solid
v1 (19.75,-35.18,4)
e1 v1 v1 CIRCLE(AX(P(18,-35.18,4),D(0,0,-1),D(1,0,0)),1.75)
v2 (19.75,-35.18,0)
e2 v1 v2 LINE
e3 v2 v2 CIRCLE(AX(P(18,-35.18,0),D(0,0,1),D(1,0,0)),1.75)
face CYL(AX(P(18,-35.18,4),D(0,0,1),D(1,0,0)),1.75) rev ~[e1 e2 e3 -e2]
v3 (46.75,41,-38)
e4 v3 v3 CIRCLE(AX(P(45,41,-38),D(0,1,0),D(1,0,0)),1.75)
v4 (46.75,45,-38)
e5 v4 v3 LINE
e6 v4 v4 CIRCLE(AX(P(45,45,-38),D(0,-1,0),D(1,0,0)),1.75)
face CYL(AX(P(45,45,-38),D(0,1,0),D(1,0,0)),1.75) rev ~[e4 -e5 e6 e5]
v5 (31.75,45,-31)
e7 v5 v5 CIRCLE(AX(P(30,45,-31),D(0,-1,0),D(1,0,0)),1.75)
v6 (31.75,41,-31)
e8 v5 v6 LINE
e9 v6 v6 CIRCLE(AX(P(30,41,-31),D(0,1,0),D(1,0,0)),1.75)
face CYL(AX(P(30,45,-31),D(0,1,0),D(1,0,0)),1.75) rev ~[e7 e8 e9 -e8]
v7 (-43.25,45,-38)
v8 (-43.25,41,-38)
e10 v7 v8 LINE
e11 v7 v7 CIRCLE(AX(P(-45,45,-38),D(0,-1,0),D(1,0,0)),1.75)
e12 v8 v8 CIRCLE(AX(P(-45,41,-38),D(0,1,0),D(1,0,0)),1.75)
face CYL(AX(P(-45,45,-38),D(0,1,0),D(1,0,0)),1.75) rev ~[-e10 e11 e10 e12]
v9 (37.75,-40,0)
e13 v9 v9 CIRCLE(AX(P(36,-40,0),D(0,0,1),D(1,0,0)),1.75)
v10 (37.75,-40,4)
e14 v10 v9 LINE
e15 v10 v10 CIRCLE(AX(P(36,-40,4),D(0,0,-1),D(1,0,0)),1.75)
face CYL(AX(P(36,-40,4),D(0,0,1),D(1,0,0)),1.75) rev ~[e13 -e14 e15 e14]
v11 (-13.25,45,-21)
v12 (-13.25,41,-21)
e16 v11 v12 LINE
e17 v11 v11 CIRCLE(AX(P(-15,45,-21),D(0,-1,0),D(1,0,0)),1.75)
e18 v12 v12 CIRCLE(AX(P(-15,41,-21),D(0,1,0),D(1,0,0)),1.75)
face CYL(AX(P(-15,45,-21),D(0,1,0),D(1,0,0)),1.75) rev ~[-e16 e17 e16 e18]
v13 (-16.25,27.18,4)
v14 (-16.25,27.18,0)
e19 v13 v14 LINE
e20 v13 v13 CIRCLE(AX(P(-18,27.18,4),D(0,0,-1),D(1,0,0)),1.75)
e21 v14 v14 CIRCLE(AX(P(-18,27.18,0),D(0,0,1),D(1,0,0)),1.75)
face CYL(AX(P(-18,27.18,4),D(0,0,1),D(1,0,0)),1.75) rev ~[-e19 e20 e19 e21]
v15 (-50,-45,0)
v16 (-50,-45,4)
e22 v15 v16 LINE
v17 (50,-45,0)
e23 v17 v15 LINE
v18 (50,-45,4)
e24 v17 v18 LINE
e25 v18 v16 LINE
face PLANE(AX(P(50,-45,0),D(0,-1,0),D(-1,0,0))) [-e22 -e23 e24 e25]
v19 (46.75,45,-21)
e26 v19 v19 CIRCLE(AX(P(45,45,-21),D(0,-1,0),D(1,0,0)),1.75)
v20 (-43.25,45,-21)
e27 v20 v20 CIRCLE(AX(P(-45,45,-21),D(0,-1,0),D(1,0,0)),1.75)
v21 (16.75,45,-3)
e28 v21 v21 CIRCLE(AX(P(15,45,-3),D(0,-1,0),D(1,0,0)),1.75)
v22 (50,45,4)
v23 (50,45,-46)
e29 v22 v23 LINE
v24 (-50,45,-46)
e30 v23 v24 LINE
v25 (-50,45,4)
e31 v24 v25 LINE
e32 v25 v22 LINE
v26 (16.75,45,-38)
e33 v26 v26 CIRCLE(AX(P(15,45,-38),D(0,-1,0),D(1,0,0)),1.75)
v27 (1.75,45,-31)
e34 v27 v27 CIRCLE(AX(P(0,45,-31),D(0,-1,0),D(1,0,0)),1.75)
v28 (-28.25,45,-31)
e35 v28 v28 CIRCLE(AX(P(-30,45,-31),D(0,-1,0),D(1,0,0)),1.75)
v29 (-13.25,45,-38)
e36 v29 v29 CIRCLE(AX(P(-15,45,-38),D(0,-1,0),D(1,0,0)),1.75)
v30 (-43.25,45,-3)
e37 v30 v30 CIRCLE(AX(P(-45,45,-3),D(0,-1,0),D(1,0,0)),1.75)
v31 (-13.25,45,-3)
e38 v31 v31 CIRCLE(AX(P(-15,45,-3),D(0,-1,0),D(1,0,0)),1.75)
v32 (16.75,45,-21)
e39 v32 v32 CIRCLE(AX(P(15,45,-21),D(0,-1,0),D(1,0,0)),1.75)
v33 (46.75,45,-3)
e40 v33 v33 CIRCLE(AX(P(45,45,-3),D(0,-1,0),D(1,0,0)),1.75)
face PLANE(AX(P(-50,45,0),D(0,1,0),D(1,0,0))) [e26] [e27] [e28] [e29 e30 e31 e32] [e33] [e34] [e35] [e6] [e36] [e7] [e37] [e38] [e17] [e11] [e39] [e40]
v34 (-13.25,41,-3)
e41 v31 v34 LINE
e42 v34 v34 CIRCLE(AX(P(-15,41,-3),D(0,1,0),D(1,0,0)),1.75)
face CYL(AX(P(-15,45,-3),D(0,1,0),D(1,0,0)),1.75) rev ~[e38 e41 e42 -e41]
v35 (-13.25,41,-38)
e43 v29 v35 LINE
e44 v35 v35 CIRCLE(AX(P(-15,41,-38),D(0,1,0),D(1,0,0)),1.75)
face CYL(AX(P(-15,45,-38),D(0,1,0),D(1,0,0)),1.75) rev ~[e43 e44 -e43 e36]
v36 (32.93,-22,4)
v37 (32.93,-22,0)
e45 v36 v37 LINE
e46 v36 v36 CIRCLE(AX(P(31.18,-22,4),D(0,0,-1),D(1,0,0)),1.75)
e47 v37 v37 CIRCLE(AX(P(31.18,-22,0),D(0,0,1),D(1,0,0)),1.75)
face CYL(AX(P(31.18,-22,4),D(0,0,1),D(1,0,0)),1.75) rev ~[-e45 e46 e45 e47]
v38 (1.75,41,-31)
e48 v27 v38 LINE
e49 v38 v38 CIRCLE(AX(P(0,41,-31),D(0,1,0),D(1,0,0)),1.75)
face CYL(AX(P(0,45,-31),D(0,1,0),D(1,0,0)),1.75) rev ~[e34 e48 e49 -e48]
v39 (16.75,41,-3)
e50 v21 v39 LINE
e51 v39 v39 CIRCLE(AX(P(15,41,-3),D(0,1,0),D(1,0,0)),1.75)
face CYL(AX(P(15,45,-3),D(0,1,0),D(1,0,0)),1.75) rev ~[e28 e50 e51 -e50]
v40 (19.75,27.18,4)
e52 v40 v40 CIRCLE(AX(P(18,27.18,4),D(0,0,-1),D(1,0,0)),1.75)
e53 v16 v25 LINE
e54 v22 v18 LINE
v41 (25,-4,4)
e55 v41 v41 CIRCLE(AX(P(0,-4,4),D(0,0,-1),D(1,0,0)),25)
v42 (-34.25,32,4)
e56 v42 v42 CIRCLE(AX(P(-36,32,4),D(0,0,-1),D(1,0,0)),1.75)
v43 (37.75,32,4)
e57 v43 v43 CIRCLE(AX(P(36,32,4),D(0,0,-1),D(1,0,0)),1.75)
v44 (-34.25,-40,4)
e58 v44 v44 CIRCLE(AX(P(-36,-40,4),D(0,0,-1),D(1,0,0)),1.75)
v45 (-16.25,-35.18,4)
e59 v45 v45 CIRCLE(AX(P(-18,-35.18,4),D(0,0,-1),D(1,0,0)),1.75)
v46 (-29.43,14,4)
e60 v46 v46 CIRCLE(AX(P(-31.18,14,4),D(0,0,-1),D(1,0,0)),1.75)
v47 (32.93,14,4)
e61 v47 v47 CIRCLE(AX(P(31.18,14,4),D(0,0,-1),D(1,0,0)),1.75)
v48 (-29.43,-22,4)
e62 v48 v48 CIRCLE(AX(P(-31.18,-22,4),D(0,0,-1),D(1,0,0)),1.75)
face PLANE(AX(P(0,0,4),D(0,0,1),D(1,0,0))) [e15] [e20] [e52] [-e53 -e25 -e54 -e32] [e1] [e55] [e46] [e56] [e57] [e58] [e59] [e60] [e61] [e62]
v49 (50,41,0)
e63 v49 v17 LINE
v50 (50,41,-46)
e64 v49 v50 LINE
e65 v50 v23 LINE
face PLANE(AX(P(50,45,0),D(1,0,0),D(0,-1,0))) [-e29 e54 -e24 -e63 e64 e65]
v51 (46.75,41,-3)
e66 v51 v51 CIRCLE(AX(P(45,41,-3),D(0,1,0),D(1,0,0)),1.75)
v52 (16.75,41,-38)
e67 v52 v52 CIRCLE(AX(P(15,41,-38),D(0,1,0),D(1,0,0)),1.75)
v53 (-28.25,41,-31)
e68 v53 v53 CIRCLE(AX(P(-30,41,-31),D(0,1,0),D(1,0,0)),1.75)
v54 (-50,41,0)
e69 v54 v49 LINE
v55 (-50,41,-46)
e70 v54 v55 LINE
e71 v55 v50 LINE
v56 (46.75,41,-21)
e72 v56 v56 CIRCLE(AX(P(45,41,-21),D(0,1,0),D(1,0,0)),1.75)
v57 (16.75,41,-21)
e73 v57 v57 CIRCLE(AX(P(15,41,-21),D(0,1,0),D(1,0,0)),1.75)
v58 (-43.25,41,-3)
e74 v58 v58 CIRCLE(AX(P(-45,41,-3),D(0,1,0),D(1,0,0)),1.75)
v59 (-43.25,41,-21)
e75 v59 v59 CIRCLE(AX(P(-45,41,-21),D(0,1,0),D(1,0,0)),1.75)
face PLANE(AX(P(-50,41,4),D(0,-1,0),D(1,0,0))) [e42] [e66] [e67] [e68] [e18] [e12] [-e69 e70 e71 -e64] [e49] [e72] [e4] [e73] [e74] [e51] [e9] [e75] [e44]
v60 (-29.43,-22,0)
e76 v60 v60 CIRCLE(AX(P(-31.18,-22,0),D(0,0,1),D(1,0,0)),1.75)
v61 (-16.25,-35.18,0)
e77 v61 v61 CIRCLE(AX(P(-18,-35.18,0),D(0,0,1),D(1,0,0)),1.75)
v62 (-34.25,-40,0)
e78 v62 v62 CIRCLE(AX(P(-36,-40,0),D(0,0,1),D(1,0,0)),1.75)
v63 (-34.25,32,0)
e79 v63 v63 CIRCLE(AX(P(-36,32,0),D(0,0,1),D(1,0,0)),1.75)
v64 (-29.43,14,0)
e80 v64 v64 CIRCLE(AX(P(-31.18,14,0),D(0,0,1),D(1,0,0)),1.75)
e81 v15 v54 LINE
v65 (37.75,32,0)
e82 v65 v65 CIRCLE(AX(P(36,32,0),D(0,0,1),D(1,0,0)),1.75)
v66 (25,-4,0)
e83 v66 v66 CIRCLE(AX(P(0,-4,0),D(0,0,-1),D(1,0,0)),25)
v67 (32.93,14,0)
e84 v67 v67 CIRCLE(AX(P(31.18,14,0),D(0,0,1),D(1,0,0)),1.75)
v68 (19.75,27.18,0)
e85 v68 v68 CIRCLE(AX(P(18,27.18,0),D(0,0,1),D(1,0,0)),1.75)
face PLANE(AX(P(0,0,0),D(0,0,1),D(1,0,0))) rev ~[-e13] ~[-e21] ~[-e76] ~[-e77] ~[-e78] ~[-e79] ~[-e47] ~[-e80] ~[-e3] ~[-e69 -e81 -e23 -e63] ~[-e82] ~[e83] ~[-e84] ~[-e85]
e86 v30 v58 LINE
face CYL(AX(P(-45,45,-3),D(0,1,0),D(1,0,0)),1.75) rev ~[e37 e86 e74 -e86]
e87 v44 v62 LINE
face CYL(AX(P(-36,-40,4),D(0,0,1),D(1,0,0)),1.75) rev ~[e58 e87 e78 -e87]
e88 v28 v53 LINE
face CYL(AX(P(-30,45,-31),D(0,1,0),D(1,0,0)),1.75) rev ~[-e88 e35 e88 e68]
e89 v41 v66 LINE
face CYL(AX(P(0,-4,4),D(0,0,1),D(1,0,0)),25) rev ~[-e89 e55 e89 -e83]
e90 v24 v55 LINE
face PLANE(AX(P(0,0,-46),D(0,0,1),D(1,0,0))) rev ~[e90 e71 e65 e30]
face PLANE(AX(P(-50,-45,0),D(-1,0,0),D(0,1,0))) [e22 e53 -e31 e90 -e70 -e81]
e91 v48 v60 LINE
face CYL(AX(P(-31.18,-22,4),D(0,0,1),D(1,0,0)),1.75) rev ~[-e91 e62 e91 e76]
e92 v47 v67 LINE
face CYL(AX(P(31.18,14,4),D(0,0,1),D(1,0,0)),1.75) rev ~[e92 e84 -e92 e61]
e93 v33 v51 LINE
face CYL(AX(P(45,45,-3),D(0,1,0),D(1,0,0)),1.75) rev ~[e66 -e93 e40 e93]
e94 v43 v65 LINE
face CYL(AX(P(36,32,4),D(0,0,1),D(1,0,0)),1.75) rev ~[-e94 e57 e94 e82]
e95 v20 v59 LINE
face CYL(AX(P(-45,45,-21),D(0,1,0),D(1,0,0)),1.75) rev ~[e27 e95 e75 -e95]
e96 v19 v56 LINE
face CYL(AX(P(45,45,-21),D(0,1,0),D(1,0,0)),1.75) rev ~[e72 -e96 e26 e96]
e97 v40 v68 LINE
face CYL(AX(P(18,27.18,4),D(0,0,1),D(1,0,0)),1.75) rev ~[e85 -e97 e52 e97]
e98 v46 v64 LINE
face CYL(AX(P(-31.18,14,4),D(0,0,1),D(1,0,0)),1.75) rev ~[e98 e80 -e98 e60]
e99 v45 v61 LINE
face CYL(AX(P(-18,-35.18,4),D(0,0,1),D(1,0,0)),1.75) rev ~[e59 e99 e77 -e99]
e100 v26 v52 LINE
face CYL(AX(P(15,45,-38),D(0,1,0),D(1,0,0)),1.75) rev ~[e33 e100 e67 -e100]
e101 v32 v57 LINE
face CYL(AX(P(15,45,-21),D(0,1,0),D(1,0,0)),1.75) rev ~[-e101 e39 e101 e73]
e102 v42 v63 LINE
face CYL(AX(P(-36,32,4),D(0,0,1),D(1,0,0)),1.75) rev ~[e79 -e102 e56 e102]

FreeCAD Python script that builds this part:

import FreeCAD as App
import Part
import Sketcher
Q = App.Units.Quantity


def add_polygon(sketch, points):
    """Adds a closed chain of lines whose ends are joined by coincident constraints."""
    first, n = sketch.GeometryCount, len(points)
    for a, b in zip(points, points[1:] + points[:1]):
        sketch.addGeometry(Part.LineSegment(App.Vector(*a, 0), App.Vector(*b, 0)), False)
    for i in range(n):
        sketch.addConstraint(Sketcher.Constraint("Coincident", first + i, 2, first + (i + 1) % n, 1))

doc = App.newDocument("Part")
params = doc.addObject("Spreadsheet::Sheet", "Params")
for row, (alias, value) in enumerate([
    ("sketch1_width", "3.937 in"),
    ("pad1_length", "4 mm"),
    ("sketch2_width", "3.937 in"),
    ("pad2_length", "1.9685039 in"),
    ("pocket1_length", "1.9685039 in"),
    ("pocket2_length", "1.9685039 in"),
    ("pocket3_length", "1.7189961 in"),
    ("pocket4_length", "1.7189961 in"),
    ("pocket5_length", "1.7189961 in"),
    ("pocket6_length", "1.7189961 in"),
    ("pocket7_length", "1.7189961 in"),
    ("pocket8_length", "1.7189961 in"),
    ("pocket9_length", "0.3937008 in"),
    ("pocket10_length", "0.3937008 in"),
], start=1):
    params.set(f"A{row}", alias)
    params.set(f"B{row}", "=" + value)
    params.setAlias(f"B{row}", alias)

body = doc.addObject("PartDesign::Body", "Body")

sketch1 = doc.addObject("Sketcher::SketchObject", "Sketch")
body.addObject(sketch1)
sketch1.AttachmentSupport = (doc.XY_Plane, [""])
sketch1.MapMode = "FlatFace"
add_polygon(sketch1, [(50, 45), (-50, 45), (-50, -45), (50, -45)])
sketch1.addConstraint(Sketcher.Constraint("Horizontal", 0))
sketch1.addConstraint(Sketcher.Constraint("Vertical", 1))
sketch1.addConstraint(Sketcher.Constraint("Horizontal", 2))
sketch1.addConstraint(Sketcher.Constraint("Vertical", 3))
sketch1.addConstraint(Sketcher.Constraint("Symmetric", 0, 2, 2, 2, -1, 1))
sketch1.addConstraint(Sketcher.Constraint("DistanceX", 0, 2, 0, 1, Q("3.937 in")))
sketch1.addConstraint(Sketcher.Constraint("DistanceY", 1, 2, 1, 1, Q("3.5433 in")))
sketch1.setExpression("Constraints[9]", "Params.sketch1_width")
pad1 = doc.addObject("PartDesign::Pad", "Pad")
body.addObject(pad1)
pad1.Profile = sketch1
pad1.setExpression("Length", "Params.pad1_length")

sketch2 = doc.addObject("Sketcher::SketchObject", "Sketch001")
body.addObject(sketch2)
sketch2.AttachmentSupport = (doc.XY_Plane, [""])
sketch2.MapMode = "FlatFace"
sketch2.AttachmentOffset = App.Placement(App.Vector(0, 0, 4), App.Rotation())
add_polygon(sketch2, [(50, 41), (50, 45), (-50, 45), (-50, 41)])
sketch2.addConstraint(Sketcher.Constraint("Vertical", 0))
sketch2.addConstraint(Sketcher.Constraint("Horizontal", 1))
sketch2.addConstraint(Sketcher.Constraint("Vertical", 2))
sketch2.addConstraint(Sketcher.Constraint("Horizontal", 3))
sketch2.addConstraint(Sketcher.Constraint("DistanceX", 1, 2, 1, 1, Q("3.937 in")))
sketch2.addConstraint(Sketcher.Constraint("DistanceY", 0, 1, 0, 2, Q("4 mm")))
sketch2.addConstraint(Sketcher.Constraint("DistanceX", -1, 1, 0, 2, Q("1.9685 in")))
sketch2.addConstraint(Sketcher.Constraint("DistanceY", -1, 1, 0, 2, Q("45 mm")))
sketch2.setExpression("Constraints[8]", "Params.sketch2_width")
pad2 = doc.addObject("PartDesign::Pad", "Pad001")
body.addObject(pad2)
pad2.Profile = sketch2
pad2.setExpression("Length", "Params.pad2_length")
pad2.Reversed = True

sketch3 = doc.addObject("Sketcher::SketchObject", "Sketch002")
body.addObject(sketch3)
sketch3.AttachmentSupport = (doc.XY_Plane, [""])
sketch3.MapMode = "FlatFace"
sketch3.AttachmentOffset = App.Placement(App.Vector(0, 0, 4), App.Rotation())
sketch3.addGeometry(Part.Circle(App.Vector(-18, 27.2, 0), App.Vector(0, 0, 1), 1.8), False)
sketch3.addGeometry(Part.Circle(App.Vector(-18, -35.2, 0), App.Vector(0, 0, 1), 1.8), False)
sketch3.addGeometry(Part.Circle(App.Vector(18, 27.2, 0), App.Vector(0, 0, 1), 1.8), False)
sketch3.addGeometry(Part.Circle(App.Vector(18, -35.2, 0), App.Vector(0, 0, 1), 1.8), False)
sketch3.addConstraint(Sketcher.Constraint("Equal", 0, 1))
sketch3.addConstraint(Sketcher.Constraint("Equal", 1, 2))
sketch3.addConstraint(Sketcher.Constraint("Equal", 2, 3))
sketch3.addConstraint(Sketcher.Constraint("Symmetric", 0, 3, 2, 3, -2))
sketch3.addConstraint(Sketcher.Constraint("Symmetric", 1, 3, 3, 3, -2))
sketch3.addConstraint(Sketcher.Constraint("Vertical", 0, 3, 1, 3))
sketch3.addConstraint(Sketcher.Constraint("Diameter", 0, Q("0.1378 in")))
sketch3.addConstraint(Sketcher.Constraint("DistanceY", 1, 3, 0, 3, Q("62.36 mm")))
sketch3.addConstraint(Sketcher.Constraint("DistanceX", 0, 3, -1, 1, Q("18 mm")))
sketch3.addConstraint(Sketcher.Constraint("DistanceY", -1, 1, 0, 3, Q("27.18 mm")))
pocket1 = doc.addObject("PartDesign::Pocket", "Pocket")
body.addObject(pocket1)
pocket1.Profile = sketch3
pocket1.setExpression("Length", "Params.pocket1_length")

sketch4 = doc.addObject("Sketcher::SketchObject", "Sketch003")
body.addObject(sketch4)
sketch4.AttachmentSupport = (doc.XY_Plane, [""])
sketch4.MapMode = "FlatFace"
sketch4.AttachmentOffset = App.Placement(App.Vector(0, 0, 4), App.Rotation())
sketch4.addGeometry(Part.Circle(App.Vector(-31.2, 14, 0), App.Vector(0, 0, 1), 1.8), False)
sketch4.addGeometry(Part.Circle(App.Vector(-31.2, -22, 0), App.Vector(0, 0, 1), 1.8), False)
sketch4.addGeometry(Part.Circle(App.Vector(31.2, 14, 0), App.Vector(0, 0, 1), 1.8), False)
sketch4.addGeometry(Part.Circle(App.Vector(31.2, -22, 0), App.Vector(0, 0, 1), 1.8), False)
sketch4.addConstraint(Sketcher.Constraint("Equal", 0, 1))
sketch4.addConstraint(Sketcher.Constraint("Equal", 1, 2))
sketch4.addConstraint(Sketcher.Constraint("Equal", 2, 3))
sketch4.addConstraint(Sketcher.Constraint("Symmetric", 0, 3, 2, 3, -2))
sketch4.addConstraint(Sketcher.Constraint("Symmetric", 1, 3, 3, 3, -2))
sketch4.addConstraint(Sketcher.Constraint("Vertical", 0, 3, 1, 3))
sketch4.addConstraint(Sketcher.Constraint("Diameter", 0, Q("0.1378 in")))
sketch4.addConstraint(Sketcher.Constraint("DistanceY", 1, 3, 0, 3, Q("36 mm")))
sketch4.addConstraint(Sketcher.Constraint("DistanceX", 0, 3, 2, 3, Q("62.36 mm")))
sketch4.addConstraint(Sketcher.Constraint("DistanceY", -1, 1, 0, 3, Q("14 mm")))
pocket2 = doc.addObject("PartDesign::Pocket", "Pocket001")
body.addObject(pocket2)
pocket2.Profile = sketch4
pocket2.setExpression("Length", "Params.pocket2_length")

sketch5 = doc.addObject("Sketcher::SketchObject", "Sketch004")
body.addObject(sketch5)
sketch5.AttachmentSupport = (doc.XY_Plane, [""])
sketch5.MapMode = "FlatFace"
sketch5.AttachmentOffset = App.Placement(App.Vector(0, 0, 4), App.Rotation())
sketch5.addGeometry(Part.Circle(App.Vector(0, -4, 0), App.Vector(0, 0, 1), 25), False)
sketch5.addConstraint(Sketcher.Constraint("PointOnObject", 0, 3, -2))
sketch5.addConstraint(Sketcher.Constraint("Diameter", 0, Q("1.9685 in")))
sketch5.addConstraint(Sketcher.Constraint("DistanceY", 0, 3, -1, 1, Q("4 mm")))
pocket3 = doc.addObject("PartDesign::Pocket", "Pocket002")
body.addObject(pocket3)
pocket3.Profile = sketch5
pocket3.setExpression("Length", "Params.pocket3_length")

sketch6 = doc.addObject("Sketcher::SketchObject", "Sketch005")
body.addObject(sketch6)
sketch6.AttachmentSupport = (doc.XZ_Plane, [""])
sketch6.MapMode = "FlatFace"
sketch6.AttachmentOffset = App.Placement(App.Vector(0, 0, -45), App.Rotation())
sketch6.addGeometry(Part.Circle(App.Vector(-15, -21, 0), App.Vector(0, 0, 1), 1.8), False)
sketch6.addGeometry(Part.Circle(App.Vector(-15, -3, 0), App.Vector(0, 0, 1), 1.8), False)
sketch6.addConstraint(Sketcher.Constraint("Equal", 0, 1))
sketch6.addConstraint(Sketcher.Constraint("Vertical", 0, 3, 1, 3))
sketch6.addConstraint(Sketcher.Constraint("Diameter", 0, Q("0.1378 in")))
sketch6.addConstraint(Sketcher.Constraint("DistanceY", 1, 3, -1, 1, Q("0.1181 in")))
sketch6.addConstraint(Sketcher.Constraint("DistanceX", 0, 3, -1, 1, Q("15 mm")))
sketch6.addConstraint(Sketcher.Constraint("DistanceY", 0, 3, -1, 1, Q("21 mm")))
pocket4 = doc.addObject("PartDesign::Pocket", "Pocket003")
body.addObject(pocket4)
pocket4.Profile = sketch6
pocket4.setExpression("Length", "Params.pocket4_length")
pocket4.Reversed = True

sketch7 = doc.addObject("Sketcher::SketchObject", "Sketch006")
body.addObject(sketch7)
sketch7.AttachmentSupport = (doc.XZ_Plane, [""])
sketch7.MapMode = "FlatFace"
sketch7.AttachmentOffset = App.Placement(App.Vector(0, 0, -45), App.Rotation())
sketch7.addGeometry(Part.Circle(App.Vector(15, -3, 0), App.Vector(0, 0, 1), 1.8), False)
sketch7.addGeometry(Part.Circle(App.Vector(15, -21, 0), App.Vector(0, 0, 1), 1.8), False)
sketch7.addConstraint(Sketcher.Constraint("Equal", 0, 1))
sketch7.addConstraint(Sketcher.Constraint("Vertical", 0, 3, 1, 3))
sketch7.addConstraint(Sketcher.Constraint("Diameter", 0, Q("0.1378 in")))
sketch7.addConstraint(Sketcher.Constraint("DistanceY", 0, 3, -1, 1, Q("0.1181 in")))
sketch7.addConstraint(Sketcher.Constraint("DistanceX", -1, 1, 0, 3, Q("15 mm")))
sketch7.addConstraint(Sketcher.Constraint("DistanceY", 1, 3, -1, 1, Q("21 mm")))
pocket5 = doc.addObject("PartDesign::Pocket", "Pocket004")
body.addObject(pocket5)
pocket5.Profile = sketch7
pocket5.setExpression("Length", "Params.pocket5_length")
pocket5.Reversed = True

sketch8 = doc.addObject("Sketcher::SketchObject", "Sketch007")
body.addObject(sketch8)
sketch8.AttachmentSupport = (doc.XZ_Plane, [""])
sketch8.MapMode = "FlatFace"
sketch8.AttachmentOffset = App.Placement(App.Vector(0, 0, -45), App.Rotation())
sketch8.addGeometry(Part.Circle(App.Vector(-45, -3, 0), App.Vector(0, 0, 1), 1.8), False)
sketch8.addGeometry(Part.Circle(App.Vector(-45, -21, 0), App.Vector(0, 0, 1), 1.8), False)
sketch8.addConstraint(Sketcher.Constraint("Equal", 0, 1))
sketch8.addConstraint(Sketcher.Constraint("Vertical", 0, 3, 1, 3))
sketch8.addConstraint(Sketcher.Constraint("Diameter", 0, Q("0.1378 in")))
sketch8.addConstraint(Sketcher.Constraint("DistanceY", 0, 3, -1, 1, Q("0.1181 in")))
sketch8.addConstraint(Sketcher.Constraint("DistanceX", 0, 3, -1, 1, Q("45 mm")))
sketch8.addConstraint(Sketcher.Constraint("DistanceY", 1, 3, -1, 1, Q("21 mm")))
pocket6 = doc.addObject("PartDesign::Pocket", "Pocket005")
body.addObject(pocket6)
pocket6.Profile = sketch8
pocket6.setExpression("Length", "Params.pocket6_length")
pocket6.Reversed = True

sketch9 = doc.addObject("Sketcher::SketchObject", "Sketch008")
body.addObject(sketch9)
sketch9.AttachmentSupport = (doc.XZ_Plane, [""])
sketch9.MapMode = "FlatFace"
sketch9.AttachmentOffset = App.Placement(App.Vector(0, 0, -45), App.Rotation())
sketch9.addGeometry(Part.Circle(App.Vector(45, -3, 0), App.Vector(0, 0, 1), 1.8), False)
sketch9.addGeometry(Part.Circle(App.Vector(45, -21, 0), App.Vector(0, 0, 1), 1.8), False)
sketch9.addConstraint(Sketcher.Constraint("Equal", 0, 1))
sketch9.addConstraint(Sketcher.Constraint("Vertical", 0, 3, 1, 3))
sketch9.addConstraint(Sketcher.Constraint("Diameter", 0, Q("0.1378 in")))
sketch9.addConstraint(Sketcher.Constraint("DistanceY", 0, 3, -1, 1, Q("0.1181 in")))
sketch9.addConstraint(Sketcher.Constraint("DistanceX", -1, 1, 0, 3, Q("45 mm")))
sketch9.addConstraint(Sketcher.Constraint("DistanceY", 1, 3, -1, 1, Q("21 mm")))
pocket7 = doc.addObject("PartDesign::Pocket", "Pocket006")
body.addObject(pocket7)
pocket7.Profile = sketch9
pocket7.setExpression("Length", "Params.pocket7_length")
pocket7.Reversed = True

sketch10 = doc.addObject("Sketcher::SketchObject", "Sketch009")
body.addObject(sketch10)
sketch10.AttachmentSupport = (doc.XZ_Plane, [""])
sketch10.MapMode = "FlatFace"
sketch10.AttachmentOffset = App.Placement(App.Vector(0, 0, -45), App.Rotation())
sketch10.addGeometry(Part.Circle(App.Vector(-45, -38, 0), App.Vector(0, 0, 1), 1.8), False)
sketch10.addGeometry(Part.Circle(App.Vector(-15, -38, 0), App.Vector(0, 0, 1), 1.8), False)
sketch10.addGeometry(Part.Circle(App.Vector(15, -38, 0), App.Vector(0, 0, 1), 1.8), False)
sketch10.addGeometry(Part.Circle(App.Vector(45, -38, 0), App.Vector(0, 0, 1), 1.8), False)
sketch10.addConstraint(Sketcher.Constraint("Equal", 0, 1))
sketch10.addConstraint(Sketcher.Constraint("Equal", 1, 2))
sketch10.addConstraint(Sketcher.Constraint("Equal", 2, 3))
sketch10.addConstraint(Sketcher.Constraint("Symmetric", 1, 3, 2, 3, -2))
sketch10.addConstraint(Sketcher.Constraint("Symmetric", 0, 3, 3, 3, -2))
sketch10.addConstraint(Sketcher.Constraint("Horizontal", 0, 3, 1, 3))
sketch10.addConstraint(Sketcher.Constraint("Diameter", 0, Q("0.1378 in")))
sketch10.addConstraint(Sketcher.Constraint("DistanceX", 0, 3, 1, 3, Q("1.1811 in")))
sketch10.addConstraint(Sketcher.Constraint("DistanceX", 1, 3, 2, 3, Q("1.1811 in")))
sketch10.addConstraint(Sketcher.Constraint("DistanceY", 0, 3, -1, 1, Q("38 mm")))
pocket8 = doc.addObject("PartDesign::Pocket", "Pocket007")
body.addObject(pocket8)
pocket8.Profile = sketch10
pocket8.setExpression("Length", "Params.pocket8_length")
pocket8.Reversed = True

sketch11 = doc.addObject("Sketcher::SketchObject", "Sketch010")
body.addObject(sketch11)
sketch11.AttachmentSupport = (doc.XZ_Plane, [""])
sketch11.MapMode = "FlatFace"
sketch11.AttachmentOffset = App.Placement(App.Vector(0, 0, -45), App.Rotation())
sketch11.addGeometry(Part.Circle(App.Vector(30, -31, 0), App.Vector(0, 0, 1), 1.8), False)
sketch11.addGeometry(Part.Circle(App.Vector(0, -31, 0), App.Vector(0, 0, 1), 1.8), False)
sketch11.addGeometry(Part.Circle(App.Vector(-30, -31, 0), App.Vector(0, 0, 1), 1.8), False)
sketch11.addConstraint(Sketcher.Constraint("Equal", 0, 1))
sketch11.addConstraint(Sketcher.Constraint("Equal", 1, 2))
sketch11.addConstraint(Sketcher.Constraint("Symmetric", 0, 3, 2, 3, -2))
sketch11.addConstraint(Sketcher.Constraint("PointOnObject", 1, 3, -2))
sketch11.addConstraint(Sketcher.Constraint("Horizontal", 0, 3, 1, 3))
sketch11.addConstraint(Sketcher.Constraint("Diameter", 0, Q("0.1378 in")))
sketch11.addConstraint(Sketcher.Constraint("DistanceX", -1, 1, 0, 3, Q("1.1811 in")))
sketch11.addConstraint(Sketcher.Constraint("DistanceY", 0, 3, -1, 1, Q("31 mm")))
pocket9 = doc.addObject("PartDesign::Pocket", "Pocket008")
body.addObject(pocket9)
pocket9.Profile = sketch11
pocket9.setExpression("Length", "Params.pocket9_length")
pocket9.Reversed = True

sketch12 = doc.addObject("Sketcher::SketchObject", "Sketch011")
body.addObject(sketch12)
sketch12.AttachmentSupport = (doc.XY_Plane, [""])
sketch12.MapMode = "FlatFace"
sketch12.AttachmentOffset = App.Placement(App.Vector(0, 0, 4), App.Rotation())
sketch12.addGeometry(Part.Circle(App.Vector(-36, 32, 0), App.Vector(0, 0, 1), 1.8), False)
sketch12.addGeometry(Part.Circle(App.Vector(-36, -40, 0), App.Vector(0, 0, 1), 1.8), False)
sketch12.addGeometry(Part.Circle(App.Vector(36, 32, 0), App.Vector(0, 0, 1), 1.8), False)
sketch12.addGeometry(Part.Circle(App.Vector(36, -40, 0), App.Vector(0, 0, 1), 1.8), False)
sketch12.addConstraint(Sketcher.Constraint("Equal", 0, 1))
sketch12.addConstraint(Sketcher.Constraint("Equal", 1, 2))
sketch12.addConstraint(Sketcher.Constraint("Equal", 2, 3))
sketch12.addConstraint(Sketcher.Constraint("Symmetric", 0, 3, 2, 3, -2))
sketch12.addConstraint(Sketcher.Constraint("Symmetric", 1, 3, 3, 3, -2))
sketch12.addConstraint(Sketcher.Constraint("Vertical", 0, 3, 1, 3))
sketch12.addConstraint(Sketcher.Constraint("Diameter", 0, Q("0.1378 in")))
sketch12.addConstraint(Sketcher.Constraint("DistanceY", 1, 3, 0, 3, Q("72 mm")))
sketch12.addConstraint(Sketcher.Constraint("DistanceX", 0, 3, 2, 3, Q("72 mm")))
sketch12.addConstraint(Sketcher.Constraint("DistanceY", 1, 3, -1, 1, Q("1.5748 in")))
pocket10 = doc.addObject("PartDesign::Pocket", "Pocket009")
body.addObject(pocket10)
pocket10.Profile = sketch12
pocket10.setExpression("Length", "Params.pocket10_length")

doc.recompute()
